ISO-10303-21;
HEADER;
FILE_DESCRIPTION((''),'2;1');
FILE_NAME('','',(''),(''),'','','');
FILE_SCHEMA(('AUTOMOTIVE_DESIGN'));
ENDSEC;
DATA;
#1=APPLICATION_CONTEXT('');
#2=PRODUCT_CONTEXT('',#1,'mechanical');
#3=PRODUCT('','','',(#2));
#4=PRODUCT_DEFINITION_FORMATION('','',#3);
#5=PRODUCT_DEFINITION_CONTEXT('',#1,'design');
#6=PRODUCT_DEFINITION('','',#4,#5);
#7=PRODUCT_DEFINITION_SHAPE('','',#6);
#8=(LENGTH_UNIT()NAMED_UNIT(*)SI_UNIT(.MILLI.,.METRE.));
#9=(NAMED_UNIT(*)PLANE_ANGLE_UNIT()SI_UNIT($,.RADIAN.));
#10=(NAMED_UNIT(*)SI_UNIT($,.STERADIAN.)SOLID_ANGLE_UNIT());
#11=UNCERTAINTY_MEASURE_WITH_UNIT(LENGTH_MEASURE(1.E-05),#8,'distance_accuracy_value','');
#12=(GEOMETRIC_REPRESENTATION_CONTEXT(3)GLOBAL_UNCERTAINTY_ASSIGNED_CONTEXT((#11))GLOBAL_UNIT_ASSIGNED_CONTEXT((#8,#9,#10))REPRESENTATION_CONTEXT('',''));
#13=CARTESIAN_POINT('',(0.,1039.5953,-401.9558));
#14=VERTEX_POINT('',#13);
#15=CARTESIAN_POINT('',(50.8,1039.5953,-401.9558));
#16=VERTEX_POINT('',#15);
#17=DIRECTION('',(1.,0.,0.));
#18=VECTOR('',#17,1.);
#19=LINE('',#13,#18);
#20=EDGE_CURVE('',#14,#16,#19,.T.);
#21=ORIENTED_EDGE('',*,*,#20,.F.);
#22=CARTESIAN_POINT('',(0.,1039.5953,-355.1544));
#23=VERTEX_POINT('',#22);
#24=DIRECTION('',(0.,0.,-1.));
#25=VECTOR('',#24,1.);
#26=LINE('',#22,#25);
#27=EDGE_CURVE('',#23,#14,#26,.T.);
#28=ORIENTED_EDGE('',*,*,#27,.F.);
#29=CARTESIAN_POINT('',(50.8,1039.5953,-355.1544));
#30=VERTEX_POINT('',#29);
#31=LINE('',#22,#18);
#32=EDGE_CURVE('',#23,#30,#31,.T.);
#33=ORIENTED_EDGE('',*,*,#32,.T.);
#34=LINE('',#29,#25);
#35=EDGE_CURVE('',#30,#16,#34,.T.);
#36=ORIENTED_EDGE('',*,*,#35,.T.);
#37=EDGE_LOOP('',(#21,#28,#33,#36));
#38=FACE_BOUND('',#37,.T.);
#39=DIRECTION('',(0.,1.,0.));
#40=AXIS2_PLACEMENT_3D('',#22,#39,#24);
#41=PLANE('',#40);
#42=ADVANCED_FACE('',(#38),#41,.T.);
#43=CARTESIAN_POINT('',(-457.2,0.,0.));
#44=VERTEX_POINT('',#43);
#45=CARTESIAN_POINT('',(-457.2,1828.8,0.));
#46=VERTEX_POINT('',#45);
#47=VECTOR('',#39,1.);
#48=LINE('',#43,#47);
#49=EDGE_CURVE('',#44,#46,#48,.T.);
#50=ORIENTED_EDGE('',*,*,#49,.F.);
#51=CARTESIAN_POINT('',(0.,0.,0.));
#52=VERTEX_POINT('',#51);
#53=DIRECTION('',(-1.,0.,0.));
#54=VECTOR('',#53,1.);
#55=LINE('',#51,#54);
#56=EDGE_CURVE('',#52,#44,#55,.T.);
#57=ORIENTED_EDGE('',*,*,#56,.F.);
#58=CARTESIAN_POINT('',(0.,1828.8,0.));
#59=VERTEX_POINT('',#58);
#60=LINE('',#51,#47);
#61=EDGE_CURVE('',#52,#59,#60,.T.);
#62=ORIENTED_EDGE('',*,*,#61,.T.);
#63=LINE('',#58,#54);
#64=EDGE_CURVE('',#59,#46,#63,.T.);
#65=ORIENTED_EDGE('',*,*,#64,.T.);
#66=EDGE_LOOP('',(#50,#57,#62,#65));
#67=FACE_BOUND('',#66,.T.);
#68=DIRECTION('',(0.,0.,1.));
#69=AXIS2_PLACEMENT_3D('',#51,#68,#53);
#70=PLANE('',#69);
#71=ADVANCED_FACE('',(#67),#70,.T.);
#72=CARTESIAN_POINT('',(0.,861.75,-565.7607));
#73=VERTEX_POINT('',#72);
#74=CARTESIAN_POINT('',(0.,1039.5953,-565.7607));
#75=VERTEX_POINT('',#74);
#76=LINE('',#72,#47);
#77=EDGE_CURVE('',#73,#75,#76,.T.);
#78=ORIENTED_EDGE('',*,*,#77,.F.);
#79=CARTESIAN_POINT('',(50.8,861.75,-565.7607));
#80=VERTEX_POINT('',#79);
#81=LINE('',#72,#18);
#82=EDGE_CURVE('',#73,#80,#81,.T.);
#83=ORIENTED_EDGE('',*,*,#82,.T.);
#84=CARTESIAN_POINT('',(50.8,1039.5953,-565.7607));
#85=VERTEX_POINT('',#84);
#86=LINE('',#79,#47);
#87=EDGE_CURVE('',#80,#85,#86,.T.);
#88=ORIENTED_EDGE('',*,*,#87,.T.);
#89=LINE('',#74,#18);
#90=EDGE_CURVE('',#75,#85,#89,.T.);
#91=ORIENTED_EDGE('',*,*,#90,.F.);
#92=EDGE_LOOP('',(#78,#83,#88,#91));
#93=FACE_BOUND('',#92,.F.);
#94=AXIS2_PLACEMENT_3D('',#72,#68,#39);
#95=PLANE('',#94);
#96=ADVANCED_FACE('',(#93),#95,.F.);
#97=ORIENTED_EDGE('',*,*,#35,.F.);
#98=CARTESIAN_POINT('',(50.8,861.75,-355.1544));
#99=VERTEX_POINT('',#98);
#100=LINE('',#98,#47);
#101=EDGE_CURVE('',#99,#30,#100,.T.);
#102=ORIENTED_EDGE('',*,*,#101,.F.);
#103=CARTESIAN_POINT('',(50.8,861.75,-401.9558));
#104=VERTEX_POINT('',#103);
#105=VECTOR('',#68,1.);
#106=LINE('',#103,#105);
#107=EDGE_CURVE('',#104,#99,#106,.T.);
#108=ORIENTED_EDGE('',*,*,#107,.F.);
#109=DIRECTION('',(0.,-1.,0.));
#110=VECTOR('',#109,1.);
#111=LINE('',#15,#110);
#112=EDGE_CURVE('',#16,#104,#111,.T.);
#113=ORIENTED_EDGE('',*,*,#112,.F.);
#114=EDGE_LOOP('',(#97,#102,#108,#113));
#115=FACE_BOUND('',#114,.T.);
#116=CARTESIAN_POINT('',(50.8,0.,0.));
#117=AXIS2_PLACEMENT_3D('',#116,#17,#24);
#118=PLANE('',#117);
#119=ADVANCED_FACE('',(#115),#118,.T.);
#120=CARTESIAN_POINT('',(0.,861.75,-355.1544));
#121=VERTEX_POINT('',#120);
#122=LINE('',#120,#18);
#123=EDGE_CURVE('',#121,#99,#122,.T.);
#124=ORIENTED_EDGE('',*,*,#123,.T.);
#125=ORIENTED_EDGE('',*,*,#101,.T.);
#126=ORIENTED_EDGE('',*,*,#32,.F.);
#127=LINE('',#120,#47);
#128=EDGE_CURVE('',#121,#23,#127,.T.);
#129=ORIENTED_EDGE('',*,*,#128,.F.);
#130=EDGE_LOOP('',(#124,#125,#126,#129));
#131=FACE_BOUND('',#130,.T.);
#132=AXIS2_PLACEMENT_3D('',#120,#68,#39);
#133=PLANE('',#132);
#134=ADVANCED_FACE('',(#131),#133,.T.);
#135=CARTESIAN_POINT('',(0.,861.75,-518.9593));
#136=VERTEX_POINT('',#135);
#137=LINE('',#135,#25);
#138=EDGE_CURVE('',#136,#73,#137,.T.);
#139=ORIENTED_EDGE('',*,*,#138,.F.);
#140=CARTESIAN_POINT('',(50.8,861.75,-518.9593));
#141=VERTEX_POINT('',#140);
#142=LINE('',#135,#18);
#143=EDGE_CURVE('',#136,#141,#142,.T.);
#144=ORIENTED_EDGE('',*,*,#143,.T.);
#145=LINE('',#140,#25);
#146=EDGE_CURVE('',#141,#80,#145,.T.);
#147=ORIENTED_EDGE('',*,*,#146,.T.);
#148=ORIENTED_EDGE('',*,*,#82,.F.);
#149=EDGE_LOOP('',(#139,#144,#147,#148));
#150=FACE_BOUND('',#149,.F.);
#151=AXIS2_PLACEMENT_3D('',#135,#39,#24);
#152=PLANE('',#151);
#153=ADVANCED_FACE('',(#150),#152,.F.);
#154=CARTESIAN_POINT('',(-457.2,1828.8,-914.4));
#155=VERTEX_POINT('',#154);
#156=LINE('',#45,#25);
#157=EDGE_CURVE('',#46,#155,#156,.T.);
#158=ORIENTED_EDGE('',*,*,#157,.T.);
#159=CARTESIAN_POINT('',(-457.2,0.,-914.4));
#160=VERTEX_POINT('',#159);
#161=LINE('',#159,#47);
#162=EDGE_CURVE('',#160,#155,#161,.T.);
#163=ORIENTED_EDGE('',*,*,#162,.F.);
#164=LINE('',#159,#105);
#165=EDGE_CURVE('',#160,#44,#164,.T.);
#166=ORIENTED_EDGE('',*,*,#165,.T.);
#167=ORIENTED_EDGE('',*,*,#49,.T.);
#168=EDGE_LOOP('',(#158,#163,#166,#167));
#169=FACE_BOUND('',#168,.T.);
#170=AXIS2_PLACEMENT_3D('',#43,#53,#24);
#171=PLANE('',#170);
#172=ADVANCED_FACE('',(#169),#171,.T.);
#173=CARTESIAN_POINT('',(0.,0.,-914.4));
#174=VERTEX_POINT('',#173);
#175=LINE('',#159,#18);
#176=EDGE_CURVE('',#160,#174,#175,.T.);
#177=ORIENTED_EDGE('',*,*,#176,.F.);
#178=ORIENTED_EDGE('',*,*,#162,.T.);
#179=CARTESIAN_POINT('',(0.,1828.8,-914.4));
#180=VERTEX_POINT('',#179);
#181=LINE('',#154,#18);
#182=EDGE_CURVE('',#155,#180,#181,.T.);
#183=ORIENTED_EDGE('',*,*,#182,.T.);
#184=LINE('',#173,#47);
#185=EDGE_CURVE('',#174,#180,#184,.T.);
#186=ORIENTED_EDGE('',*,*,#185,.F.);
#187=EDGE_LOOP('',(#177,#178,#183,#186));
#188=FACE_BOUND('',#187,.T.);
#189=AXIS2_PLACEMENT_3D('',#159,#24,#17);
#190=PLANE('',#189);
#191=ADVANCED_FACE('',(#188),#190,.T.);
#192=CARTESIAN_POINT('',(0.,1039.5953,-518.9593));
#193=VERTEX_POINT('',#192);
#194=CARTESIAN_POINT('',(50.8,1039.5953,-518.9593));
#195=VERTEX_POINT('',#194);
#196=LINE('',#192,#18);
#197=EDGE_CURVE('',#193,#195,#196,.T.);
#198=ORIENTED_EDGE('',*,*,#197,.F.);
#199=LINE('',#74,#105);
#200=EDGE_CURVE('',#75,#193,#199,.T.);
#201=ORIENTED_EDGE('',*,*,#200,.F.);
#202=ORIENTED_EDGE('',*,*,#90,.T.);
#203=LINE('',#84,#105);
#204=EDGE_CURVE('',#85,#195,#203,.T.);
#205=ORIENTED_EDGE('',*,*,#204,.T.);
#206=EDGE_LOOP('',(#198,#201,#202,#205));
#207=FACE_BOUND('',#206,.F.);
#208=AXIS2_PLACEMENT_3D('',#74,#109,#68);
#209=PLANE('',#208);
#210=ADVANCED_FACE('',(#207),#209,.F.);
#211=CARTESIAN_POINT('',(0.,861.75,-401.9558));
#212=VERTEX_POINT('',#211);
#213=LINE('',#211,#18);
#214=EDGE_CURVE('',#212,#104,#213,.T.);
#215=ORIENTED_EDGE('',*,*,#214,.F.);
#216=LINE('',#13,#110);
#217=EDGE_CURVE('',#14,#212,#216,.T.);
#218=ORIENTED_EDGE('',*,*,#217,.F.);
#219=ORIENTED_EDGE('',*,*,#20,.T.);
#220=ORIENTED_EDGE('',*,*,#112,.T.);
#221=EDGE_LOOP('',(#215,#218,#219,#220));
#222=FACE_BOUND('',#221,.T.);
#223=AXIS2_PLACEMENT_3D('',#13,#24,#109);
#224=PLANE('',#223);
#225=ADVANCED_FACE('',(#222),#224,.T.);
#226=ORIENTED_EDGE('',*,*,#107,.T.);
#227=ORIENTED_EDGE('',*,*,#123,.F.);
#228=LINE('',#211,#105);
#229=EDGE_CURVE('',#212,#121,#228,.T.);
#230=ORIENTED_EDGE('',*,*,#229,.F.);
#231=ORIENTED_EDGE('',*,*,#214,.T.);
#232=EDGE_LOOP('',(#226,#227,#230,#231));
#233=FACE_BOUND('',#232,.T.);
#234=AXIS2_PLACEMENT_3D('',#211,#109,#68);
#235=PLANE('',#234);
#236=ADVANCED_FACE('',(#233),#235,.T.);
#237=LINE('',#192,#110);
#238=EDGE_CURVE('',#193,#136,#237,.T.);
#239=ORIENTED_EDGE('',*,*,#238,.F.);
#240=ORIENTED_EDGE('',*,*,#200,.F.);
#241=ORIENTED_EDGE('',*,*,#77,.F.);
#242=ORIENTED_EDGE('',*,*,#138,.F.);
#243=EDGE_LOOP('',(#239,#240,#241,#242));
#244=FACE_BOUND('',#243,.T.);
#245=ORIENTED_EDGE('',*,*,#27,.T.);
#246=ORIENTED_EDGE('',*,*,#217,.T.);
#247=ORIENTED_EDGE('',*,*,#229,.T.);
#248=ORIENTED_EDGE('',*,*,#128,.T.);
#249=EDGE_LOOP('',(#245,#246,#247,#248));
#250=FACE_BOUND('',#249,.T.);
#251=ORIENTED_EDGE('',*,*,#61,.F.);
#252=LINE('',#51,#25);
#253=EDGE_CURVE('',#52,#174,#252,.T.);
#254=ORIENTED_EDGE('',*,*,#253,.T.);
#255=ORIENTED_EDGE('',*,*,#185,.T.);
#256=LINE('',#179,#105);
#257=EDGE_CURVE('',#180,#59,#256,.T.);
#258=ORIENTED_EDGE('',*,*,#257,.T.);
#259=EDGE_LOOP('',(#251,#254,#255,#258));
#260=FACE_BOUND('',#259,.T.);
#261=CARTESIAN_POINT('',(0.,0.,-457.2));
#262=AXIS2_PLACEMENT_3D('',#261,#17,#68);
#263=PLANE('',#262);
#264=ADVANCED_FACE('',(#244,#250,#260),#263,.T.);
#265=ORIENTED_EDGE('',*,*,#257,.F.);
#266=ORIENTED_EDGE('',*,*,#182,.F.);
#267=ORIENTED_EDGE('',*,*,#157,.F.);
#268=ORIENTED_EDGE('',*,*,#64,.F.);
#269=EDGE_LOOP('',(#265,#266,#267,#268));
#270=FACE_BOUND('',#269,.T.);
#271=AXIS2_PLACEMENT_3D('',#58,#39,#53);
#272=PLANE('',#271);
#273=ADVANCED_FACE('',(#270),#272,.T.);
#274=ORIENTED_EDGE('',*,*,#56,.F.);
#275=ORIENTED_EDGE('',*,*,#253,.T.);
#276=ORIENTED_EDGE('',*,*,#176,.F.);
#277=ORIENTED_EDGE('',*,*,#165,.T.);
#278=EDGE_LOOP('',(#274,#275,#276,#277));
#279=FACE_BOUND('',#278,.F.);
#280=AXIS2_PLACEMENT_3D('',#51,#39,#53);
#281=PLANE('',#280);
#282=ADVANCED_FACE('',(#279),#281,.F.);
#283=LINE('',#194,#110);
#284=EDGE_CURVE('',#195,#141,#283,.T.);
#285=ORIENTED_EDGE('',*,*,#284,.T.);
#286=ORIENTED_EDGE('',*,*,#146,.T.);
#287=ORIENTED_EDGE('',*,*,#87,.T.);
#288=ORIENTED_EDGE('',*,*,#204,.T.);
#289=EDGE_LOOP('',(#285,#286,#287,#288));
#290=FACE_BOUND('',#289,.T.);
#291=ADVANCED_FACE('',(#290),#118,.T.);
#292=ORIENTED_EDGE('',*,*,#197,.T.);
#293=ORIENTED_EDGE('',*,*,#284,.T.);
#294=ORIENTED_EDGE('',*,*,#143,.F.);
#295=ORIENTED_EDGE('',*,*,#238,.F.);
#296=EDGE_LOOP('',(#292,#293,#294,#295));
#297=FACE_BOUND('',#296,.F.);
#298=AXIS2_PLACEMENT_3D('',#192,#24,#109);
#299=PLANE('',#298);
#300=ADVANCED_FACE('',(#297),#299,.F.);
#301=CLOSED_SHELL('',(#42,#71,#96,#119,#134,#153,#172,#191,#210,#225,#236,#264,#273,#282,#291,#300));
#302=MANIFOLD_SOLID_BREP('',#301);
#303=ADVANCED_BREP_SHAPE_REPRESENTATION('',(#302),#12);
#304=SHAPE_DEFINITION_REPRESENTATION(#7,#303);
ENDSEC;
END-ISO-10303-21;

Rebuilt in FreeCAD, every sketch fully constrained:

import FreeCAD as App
import Part
import Sketcher
Q = App.Units.Quantity


def add_polygon(sketch, points):
    """Adds a closed chain of lines whose ends are joined by coincident constraints."""
    first, n = sketch.GeometryCount, len(points)
    for a, b in zip(points, points[1:] + points[:1]):
        sketch.addGeometry(Part.LineSegment(App.Vector(*a, 0), App.Vector(*b, 0)), False)
    for i in range(n):
        sketch.addConstraint(Sketcher.Constraint("Coincident", first + i, 2, first + (i + 1) % n, 1))

doc = App.newDocument("Part")
body = doc.addObject("PartDesign::Body", "Body")

# Sketch on XZ plane
sketch1 = body.newObject("Sketcher::SketchObject", "Sketch")
sketch1.AttachmentSupport = (doc.getObject("XZ_Plane"), [""])
sketch1.MapMode = "FlatFace"
add_polygon(sketch1, [(-457, 0), (0, 0), (0, -914), (-457, -914)])  # lines 0-3
sketch1.addConstraint(Sketcher.Constraint("Horizontal", 0))
sketch1.addConstraint(Sketcher.Constraint("Vertical", 1))
sketch1.addConstraint(Sketcher.Constraint("Horizontal", 2))
sketch1.addConstraint(Sketcher.Constraint("Vertical", 3))
sketch1.addConstraint(Sketcher.Constraint("Coincident", 0, 2, -1, 1))
sketch1.addConstraint(Sketcher.Constraint("DistanceX", 0, 1, 0, 2, Q("18 in")))
sketch1.addConstraint(Sketcher.Constraint("DistanceY", 1, 2, 1, 1, Q("36 in")))
pad1 = body.newObject("PartDesign::Pad", "Pad")
pad1.Profile = sketch1
pad1.Length = Q("72 in")
pad1.Reversed = True

# Sketch on YZ plane
sketch2 = body.newObject("Sketcher::SketchObject", "Sketch001")
sketch2.AttachmentSupport = (doc.getObject("YZ_Plane"), [""])
sketch2.MapMode = "FlatFace"
add_polygon(sketch2, [(1040, -402), (1040, -355), (862, -355), (862, -402)])  # lines 0-3
add_polygon(sketch2, [(1040, -519), (862, -519), (862, -566), (1040, -566)])  # lines 4-7
sketch2.addConstraint(Sketcher.Constraint("Vertical", 0))
sketch2.addConstraint(Sketcher.Constraint("Horizontal", 1))
sketch2.addConstraint(Sketcher.Constraint("Vertical", 2))
sketch2.addConstraint(Sketcher.Constraint("Horizontal", 3))
sketch2.addConstraint(Sketcher.Constraint("Horizontal", 4))
sketch2.addConstraint(Sketcher.Constraint("Vertical", 5))
sketch2.addConstraint(Sketcher.Constraint("Horizontal", 6))
sketch2.addConstraint(Sketcher.Constraint("Vertical", 7))
sketch2.addConstraint(Sketcher.Constraint("Vertical", 2, 2, 4, 2))
sketch2.addConstraint(Sketcher.Constraint("Vertical", 3, 2, 6, 2))
sketch2.addConstraint(Sketcher.Constraint("Equal", 2, 5))
sketch2.addConstraint(Sketcher.Constraint("DistanceY", 4, 2, 1, 2, Q("6.449 in")))
sketch2.addConstraint(Sketcher.Constraint("DistanceX", 1, 2, 1, 1, Q("177.8453 mm")))
sketch2.addConstraint(Sketcher.Constraint("DistanceY", 0, 1, 0, 2, Q("46.8014 mm")))
sketch2.addConstraint(Sketcher.Constraint("DistanceX", -1, 1, 0, 2, Q("1039.5953 mm")))
sketch2.addConstraint(Sketcher.Constraint("DistanceY", 0, 2, -1, 1, Q("355.1544 mm")))
pad2 = body.newObject("PartDesign::Pad", "Pad001")
pad2.Profile = sketch2
pad2.Length = Q("2 in")

doc.recompute()
